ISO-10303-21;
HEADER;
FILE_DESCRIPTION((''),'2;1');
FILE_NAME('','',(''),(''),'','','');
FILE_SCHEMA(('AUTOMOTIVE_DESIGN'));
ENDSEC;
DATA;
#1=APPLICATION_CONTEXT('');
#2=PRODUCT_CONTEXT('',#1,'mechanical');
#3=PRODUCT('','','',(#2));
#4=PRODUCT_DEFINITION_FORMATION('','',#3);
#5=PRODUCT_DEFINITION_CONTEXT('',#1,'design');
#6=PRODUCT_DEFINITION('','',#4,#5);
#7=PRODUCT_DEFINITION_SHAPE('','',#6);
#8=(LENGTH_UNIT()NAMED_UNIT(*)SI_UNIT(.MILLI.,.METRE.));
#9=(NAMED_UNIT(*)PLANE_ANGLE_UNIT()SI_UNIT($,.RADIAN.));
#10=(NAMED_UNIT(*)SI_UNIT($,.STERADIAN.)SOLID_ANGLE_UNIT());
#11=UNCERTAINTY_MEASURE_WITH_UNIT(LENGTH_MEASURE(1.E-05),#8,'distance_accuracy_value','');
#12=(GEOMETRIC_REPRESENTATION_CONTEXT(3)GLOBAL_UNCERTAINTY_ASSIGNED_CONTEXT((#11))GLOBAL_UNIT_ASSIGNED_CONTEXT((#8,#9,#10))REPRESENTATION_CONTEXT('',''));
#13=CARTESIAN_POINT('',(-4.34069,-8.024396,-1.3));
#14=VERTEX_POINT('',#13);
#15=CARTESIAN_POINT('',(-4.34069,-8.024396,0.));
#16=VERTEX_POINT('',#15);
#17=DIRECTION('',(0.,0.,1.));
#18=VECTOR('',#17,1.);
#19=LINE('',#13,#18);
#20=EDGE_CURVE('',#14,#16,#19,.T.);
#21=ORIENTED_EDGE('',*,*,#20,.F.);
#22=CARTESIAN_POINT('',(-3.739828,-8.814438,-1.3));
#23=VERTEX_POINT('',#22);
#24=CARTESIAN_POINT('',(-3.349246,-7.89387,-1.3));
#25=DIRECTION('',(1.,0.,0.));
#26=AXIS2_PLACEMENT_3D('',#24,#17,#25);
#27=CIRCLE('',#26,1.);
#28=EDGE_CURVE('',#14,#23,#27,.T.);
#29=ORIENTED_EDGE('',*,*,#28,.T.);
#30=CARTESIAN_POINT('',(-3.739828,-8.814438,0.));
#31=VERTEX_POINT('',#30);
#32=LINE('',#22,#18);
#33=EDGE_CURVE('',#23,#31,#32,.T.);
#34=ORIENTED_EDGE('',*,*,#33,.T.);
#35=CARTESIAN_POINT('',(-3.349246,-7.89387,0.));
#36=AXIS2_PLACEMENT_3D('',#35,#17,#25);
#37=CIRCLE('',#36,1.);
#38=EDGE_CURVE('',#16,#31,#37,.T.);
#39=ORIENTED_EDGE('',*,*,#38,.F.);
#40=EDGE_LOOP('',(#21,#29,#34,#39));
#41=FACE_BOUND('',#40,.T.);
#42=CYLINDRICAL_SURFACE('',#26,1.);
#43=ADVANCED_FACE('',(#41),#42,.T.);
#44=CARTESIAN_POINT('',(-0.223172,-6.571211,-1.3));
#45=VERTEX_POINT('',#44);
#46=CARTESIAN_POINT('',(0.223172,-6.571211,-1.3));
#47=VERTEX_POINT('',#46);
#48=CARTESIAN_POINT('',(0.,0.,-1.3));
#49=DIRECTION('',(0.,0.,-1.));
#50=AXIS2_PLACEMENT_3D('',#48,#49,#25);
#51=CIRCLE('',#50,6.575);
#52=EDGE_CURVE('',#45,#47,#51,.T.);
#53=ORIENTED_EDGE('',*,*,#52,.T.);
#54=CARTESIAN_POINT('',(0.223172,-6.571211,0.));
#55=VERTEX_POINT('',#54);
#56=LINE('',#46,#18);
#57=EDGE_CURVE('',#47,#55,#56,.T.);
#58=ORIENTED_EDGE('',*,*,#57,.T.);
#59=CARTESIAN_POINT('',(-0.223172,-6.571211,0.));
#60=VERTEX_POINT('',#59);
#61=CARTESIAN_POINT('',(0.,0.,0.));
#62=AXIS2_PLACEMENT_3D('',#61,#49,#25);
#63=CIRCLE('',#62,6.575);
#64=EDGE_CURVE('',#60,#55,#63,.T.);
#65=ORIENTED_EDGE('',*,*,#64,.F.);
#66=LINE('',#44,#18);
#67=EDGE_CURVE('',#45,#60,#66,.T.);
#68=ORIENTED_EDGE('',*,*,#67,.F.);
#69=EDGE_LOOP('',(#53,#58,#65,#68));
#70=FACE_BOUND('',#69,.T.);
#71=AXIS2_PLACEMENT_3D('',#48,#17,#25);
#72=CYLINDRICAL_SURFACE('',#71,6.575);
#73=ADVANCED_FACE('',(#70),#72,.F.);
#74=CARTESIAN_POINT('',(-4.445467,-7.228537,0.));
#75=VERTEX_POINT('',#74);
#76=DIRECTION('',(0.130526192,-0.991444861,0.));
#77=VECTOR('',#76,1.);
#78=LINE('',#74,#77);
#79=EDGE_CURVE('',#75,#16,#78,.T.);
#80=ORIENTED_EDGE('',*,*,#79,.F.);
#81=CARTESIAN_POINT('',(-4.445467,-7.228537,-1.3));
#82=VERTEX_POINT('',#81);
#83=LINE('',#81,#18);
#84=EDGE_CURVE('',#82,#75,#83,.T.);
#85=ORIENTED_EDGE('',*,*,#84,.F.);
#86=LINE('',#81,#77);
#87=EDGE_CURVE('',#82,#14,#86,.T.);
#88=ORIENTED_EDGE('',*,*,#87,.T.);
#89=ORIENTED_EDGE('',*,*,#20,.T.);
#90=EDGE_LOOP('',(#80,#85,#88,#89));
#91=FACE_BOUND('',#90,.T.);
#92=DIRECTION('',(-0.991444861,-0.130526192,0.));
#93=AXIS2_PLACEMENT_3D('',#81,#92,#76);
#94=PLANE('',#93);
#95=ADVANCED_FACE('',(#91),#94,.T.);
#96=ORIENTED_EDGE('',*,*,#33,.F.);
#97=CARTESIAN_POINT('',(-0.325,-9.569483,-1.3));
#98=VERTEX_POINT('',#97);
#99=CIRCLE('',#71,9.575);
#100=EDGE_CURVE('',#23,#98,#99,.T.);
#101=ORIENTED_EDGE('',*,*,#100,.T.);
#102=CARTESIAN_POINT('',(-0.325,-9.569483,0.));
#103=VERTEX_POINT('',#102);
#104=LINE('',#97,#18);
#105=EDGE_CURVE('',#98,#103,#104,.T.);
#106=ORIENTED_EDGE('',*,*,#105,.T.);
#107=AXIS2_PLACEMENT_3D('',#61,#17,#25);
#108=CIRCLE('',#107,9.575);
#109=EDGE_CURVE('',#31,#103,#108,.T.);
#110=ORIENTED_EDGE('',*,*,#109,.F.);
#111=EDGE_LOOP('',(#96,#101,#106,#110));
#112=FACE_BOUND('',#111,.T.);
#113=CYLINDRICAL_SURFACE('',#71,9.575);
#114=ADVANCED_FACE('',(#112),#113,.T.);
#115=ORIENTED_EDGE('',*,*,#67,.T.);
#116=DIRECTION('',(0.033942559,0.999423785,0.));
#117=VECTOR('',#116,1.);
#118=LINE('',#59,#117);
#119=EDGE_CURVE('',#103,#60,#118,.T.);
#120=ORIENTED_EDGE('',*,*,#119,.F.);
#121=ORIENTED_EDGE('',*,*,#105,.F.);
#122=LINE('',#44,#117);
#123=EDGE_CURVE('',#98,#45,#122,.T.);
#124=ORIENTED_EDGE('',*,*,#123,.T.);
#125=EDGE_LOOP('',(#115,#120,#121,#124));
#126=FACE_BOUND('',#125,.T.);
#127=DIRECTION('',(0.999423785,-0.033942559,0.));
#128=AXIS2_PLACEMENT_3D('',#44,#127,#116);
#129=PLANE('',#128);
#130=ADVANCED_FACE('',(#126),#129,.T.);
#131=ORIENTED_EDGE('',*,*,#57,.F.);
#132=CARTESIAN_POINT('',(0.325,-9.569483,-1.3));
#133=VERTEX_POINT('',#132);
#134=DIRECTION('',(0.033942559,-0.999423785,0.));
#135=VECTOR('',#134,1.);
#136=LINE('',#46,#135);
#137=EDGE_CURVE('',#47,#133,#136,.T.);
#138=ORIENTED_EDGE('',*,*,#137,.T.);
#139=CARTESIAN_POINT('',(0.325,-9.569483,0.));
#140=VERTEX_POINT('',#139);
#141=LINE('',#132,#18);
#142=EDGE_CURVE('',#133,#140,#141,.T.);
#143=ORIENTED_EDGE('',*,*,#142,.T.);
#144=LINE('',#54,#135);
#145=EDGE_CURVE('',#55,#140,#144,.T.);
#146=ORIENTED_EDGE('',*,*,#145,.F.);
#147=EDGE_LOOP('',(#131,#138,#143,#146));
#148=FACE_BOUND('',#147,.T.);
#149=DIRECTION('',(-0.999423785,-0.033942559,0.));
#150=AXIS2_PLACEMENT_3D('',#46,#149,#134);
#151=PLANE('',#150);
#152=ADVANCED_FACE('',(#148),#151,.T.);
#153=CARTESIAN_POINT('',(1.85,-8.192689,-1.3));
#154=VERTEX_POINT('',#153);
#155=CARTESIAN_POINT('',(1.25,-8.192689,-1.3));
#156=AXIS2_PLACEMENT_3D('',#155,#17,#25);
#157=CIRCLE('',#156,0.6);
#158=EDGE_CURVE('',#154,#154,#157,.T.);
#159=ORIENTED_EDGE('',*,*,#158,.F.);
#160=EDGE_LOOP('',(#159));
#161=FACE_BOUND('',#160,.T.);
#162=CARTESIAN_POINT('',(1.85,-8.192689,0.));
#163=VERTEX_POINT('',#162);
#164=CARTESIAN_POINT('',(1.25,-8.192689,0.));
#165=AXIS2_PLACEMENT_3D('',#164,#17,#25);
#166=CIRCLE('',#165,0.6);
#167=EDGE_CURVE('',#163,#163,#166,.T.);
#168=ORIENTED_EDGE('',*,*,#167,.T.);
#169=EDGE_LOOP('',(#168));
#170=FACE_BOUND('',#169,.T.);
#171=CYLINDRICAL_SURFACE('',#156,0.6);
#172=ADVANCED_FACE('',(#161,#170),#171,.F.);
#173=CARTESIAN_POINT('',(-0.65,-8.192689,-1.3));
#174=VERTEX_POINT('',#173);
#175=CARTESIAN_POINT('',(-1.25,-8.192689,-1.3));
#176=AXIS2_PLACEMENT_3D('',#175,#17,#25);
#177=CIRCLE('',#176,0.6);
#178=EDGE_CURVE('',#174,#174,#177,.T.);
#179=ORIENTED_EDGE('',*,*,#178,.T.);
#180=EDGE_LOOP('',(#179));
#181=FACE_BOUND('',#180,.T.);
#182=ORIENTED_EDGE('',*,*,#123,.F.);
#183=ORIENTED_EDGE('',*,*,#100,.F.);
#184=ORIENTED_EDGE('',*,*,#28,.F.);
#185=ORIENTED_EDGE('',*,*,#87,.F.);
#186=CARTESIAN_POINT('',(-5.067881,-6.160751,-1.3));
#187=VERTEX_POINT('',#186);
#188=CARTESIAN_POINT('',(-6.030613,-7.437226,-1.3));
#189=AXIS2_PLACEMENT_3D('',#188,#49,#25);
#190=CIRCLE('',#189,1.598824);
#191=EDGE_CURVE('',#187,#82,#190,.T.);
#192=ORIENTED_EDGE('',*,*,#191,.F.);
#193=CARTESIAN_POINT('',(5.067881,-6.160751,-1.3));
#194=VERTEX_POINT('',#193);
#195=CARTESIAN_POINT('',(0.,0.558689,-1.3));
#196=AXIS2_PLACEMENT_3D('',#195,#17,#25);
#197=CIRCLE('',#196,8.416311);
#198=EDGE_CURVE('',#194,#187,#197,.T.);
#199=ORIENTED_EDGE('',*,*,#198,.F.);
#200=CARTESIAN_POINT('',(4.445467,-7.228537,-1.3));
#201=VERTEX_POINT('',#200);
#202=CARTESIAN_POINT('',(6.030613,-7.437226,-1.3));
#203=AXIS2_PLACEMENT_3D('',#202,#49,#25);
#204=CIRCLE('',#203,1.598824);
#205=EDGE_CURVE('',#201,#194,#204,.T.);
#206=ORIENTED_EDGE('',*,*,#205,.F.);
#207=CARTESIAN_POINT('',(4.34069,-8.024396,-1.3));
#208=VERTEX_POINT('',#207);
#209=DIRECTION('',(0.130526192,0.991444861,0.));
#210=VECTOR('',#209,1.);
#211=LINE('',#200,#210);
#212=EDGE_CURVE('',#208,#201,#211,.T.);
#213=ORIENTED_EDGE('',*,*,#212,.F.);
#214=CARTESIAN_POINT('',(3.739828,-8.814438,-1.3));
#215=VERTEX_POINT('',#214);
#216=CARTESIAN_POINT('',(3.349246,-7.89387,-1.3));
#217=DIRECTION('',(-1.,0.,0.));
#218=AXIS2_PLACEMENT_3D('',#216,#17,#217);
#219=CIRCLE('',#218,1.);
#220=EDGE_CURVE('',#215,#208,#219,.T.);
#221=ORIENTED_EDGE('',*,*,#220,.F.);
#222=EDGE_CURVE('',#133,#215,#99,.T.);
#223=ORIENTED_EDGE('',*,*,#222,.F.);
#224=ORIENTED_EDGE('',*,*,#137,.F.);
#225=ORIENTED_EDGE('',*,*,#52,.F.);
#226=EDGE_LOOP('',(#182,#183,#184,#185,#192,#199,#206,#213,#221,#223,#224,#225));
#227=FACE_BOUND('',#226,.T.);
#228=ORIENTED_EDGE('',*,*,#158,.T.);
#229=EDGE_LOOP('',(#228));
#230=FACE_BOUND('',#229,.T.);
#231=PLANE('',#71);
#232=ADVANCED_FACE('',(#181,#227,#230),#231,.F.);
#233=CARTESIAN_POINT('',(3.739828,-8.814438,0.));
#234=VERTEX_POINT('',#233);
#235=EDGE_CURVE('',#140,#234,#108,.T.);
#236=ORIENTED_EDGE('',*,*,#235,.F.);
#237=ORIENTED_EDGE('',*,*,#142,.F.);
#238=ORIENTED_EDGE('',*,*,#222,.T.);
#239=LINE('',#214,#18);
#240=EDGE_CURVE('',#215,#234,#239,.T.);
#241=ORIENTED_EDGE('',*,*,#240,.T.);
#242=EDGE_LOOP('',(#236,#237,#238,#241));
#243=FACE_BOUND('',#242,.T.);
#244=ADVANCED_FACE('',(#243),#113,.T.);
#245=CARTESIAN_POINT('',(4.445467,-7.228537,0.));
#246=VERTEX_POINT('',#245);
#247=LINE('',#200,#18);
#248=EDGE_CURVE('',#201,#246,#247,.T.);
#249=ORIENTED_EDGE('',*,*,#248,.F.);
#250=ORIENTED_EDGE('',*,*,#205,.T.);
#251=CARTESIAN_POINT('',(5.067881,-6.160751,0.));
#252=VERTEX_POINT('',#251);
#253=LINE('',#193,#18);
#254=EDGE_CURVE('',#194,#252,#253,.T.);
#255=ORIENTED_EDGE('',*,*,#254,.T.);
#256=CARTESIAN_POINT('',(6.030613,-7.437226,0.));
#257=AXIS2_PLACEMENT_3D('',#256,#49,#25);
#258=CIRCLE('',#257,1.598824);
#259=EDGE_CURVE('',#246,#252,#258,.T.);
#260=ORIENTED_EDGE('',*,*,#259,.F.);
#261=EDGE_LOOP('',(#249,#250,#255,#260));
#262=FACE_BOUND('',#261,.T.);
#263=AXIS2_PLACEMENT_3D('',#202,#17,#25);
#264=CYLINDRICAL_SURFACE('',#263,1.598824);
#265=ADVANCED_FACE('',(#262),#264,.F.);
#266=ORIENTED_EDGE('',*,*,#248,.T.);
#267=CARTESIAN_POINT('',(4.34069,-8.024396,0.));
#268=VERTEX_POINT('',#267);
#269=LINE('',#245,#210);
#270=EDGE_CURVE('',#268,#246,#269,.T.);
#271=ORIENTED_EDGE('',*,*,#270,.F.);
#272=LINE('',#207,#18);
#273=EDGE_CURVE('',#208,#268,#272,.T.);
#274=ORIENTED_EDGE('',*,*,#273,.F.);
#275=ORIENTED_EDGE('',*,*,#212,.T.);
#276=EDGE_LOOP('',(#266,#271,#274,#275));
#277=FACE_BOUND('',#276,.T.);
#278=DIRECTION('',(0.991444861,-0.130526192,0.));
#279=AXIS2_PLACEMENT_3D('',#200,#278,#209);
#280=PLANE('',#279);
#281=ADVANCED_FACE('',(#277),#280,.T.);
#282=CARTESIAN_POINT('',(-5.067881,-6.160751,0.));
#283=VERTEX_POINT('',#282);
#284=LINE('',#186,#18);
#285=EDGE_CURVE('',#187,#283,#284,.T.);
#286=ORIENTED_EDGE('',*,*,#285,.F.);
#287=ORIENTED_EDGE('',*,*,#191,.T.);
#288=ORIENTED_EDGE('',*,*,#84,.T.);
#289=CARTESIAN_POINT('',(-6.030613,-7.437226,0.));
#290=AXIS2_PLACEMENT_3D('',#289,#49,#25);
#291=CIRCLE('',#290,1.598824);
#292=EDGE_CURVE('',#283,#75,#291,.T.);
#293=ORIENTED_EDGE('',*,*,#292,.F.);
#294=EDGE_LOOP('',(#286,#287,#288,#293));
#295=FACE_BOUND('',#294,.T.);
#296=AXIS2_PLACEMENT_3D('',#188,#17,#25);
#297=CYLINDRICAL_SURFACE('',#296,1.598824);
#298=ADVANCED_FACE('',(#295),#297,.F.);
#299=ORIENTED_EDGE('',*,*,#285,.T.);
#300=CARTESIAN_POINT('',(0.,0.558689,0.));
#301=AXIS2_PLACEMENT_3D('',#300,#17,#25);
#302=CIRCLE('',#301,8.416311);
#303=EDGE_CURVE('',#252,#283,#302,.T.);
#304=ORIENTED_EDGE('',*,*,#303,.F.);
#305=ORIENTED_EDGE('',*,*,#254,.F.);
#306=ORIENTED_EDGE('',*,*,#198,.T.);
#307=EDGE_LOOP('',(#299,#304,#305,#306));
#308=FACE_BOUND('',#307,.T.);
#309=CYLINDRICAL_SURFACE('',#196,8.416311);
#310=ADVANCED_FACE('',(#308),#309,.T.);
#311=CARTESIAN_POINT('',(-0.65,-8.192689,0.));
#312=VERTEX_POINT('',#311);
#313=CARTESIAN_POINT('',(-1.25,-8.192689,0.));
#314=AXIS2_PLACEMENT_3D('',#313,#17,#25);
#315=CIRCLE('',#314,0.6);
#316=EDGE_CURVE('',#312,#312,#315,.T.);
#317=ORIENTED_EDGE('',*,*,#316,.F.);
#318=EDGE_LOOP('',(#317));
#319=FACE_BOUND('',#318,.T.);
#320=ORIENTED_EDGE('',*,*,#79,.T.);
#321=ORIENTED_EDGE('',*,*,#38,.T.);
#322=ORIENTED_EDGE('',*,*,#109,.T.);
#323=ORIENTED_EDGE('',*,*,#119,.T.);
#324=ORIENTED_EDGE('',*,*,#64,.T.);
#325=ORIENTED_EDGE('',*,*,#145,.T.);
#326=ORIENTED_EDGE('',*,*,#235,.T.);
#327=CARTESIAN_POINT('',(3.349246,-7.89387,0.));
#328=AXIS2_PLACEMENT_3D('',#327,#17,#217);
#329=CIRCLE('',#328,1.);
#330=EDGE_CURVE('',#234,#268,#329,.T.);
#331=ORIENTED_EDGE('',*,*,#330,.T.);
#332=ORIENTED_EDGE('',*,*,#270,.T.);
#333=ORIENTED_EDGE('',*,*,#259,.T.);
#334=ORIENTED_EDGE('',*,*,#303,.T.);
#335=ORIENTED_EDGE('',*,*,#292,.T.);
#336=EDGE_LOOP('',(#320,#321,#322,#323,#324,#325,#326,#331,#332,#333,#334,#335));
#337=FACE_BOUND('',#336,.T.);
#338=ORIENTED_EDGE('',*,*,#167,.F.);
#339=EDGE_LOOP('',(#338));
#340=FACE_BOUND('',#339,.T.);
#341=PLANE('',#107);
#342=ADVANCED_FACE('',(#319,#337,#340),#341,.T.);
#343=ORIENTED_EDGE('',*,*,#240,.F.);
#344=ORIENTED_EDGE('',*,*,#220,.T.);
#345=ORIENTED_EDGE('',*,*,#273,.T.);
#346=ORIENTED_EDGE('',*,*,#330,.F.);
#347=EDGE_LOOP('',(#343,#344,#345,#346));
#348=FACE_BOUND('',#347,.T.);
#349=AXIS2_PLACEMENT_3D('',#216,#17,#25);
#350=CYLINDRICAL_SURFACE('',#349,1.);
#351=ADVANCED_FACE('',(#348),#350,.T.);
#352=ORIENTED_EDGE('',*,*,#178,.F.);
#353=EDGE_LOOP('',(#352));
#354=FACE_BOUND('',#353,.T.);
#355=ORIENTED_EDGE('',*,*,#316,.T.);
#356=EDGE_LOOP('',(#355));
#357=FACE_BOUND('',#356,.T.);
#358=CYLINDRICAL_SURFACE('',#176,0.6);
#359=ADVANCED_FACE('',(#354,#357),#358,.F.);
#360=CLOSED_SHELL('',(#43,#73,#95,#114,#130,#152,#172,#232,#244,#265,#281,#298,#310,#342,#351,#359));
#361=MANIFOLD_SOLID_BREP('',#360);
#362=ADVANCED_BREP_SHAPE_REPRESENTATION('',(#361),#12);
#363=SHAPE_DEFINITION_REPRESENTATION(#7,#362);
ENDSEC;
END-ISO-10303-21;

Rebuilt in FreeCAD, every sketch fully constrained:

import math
import FreeCAD as App
import Part
import Sketcher
from FreeCAD import Vector
Q = App.Units.Quantity

doc = App.newDocument("Part")
body = doc.addObject("PartDesign::Body", "Body")

# Sketch on XY plane
sketch1 = doc.addObject("Sketcher::SketchObject", "Sketch")
body.addObject(sketch1)
sketch1.AttachmentSupport = (doc.XY_Plane, [""])
sketch1.MapMode = "FlatFace"
sketch1.addGeometry(Part.LineSegment(Vector(0.22, -6.57, 0), Vector(0.33, -9.57, 0)), False)
sketch1.addGeometry(Part.ArcOfCircle(Part.Circle(Vector(0, 0, 0), Vector(0, 0, 1), 9.57), math.radians(-88), math.radians(-67)), False)
sketch1.addGeometry(Part.ArcOfCircle(Part.Circle(Vector(3.35, -7.89, 0), Vector(0, 0, 1), 1), math.radians(-67), math.radians(-7)), False)
sketch1.addGeometry(Part.LineSegment(Vector(4.34, -8.02, 0), Vector(4.45, -7.23, 0)), False)
sketch1.addGeometry(Part.ArcOfCircle(Part.Circle(Vector(6.03, -7.44, 0), Vector(0, 0, 1), 1.6), math.radians(127), math.radians(172)), False)
sketch1.addGeometry(Part.ArcOfCircle(Part.Circle(Vector(0, 0.56, 0), Vector(0, 0, 1), 8.42), math.radians(-53), math.radians(233)), False)
sketch1.addGeometry(Part.ArcOfCircle(Part.Circle(Vector(-6.03, -7.44, 0), Vector(0, 0, 1), 1.6), math.radians(8), math.radians(53)), False)
sketch1.addGeometry(Part.LineSegment(Vector(-4.45, -7.23, 0), Vector(-4.34, -8.02, 0)), False)
sketch1.addGeometry(Part.ArcOfCircle(Part.Circle(Vector(-3.35, -7.89, 0), Vector(0, 0, 1), 1), math.radians(-173), math.radians(-113)), False)
sketch1.addGeometry(Part.ArcOfCircle(Part.Circle(Vector(0, 0, 0), Vector(0, 0, 1), 9.57), math.radians(-113), math.radians(-92)), False)
sketch1.addGeometry(Part.LineSegment(Vector(-0.33, -9.57, 0), Vector(-0.22, -6.57, 0)), False)
sketch1.addGeometry(Part.ArcOfCircle(Part.Circle(Vector(0, 0, 0), Vector(0, 0, 1), 6.58), math.radians(-88), math.radians(268)), False)
sketch1.addGeometry(Part.Circle(Vector(-1.25, -8.19, 0), Vector(0, 0, 1), 0.6), False)
sketch1.addGeometry(Part.Circle(Vector(1.25, -8.19, 0), Vector(0, 0, 1), 0.6), False)
sketch1.addConstraint(Sketcher.Constraint("Coincident", 0, 2, 1, 1))
sketch1.addConstraint(Sketcher.Constraint("Tangent", 1, 2, 2, 1))
sketch1.addConstraint(Sketcher.Constraint("Tangent", 2, 2, 3, 1))
sketch1.addConstraint(Sketcher.Constraint("Tangent", 3, 2, 4, 2))
sketch1.addConstraint(Sketcher.Constraint("Tangent", 4, 1, 5, 1))
sketch1.addConstraint(Sketcher.Constraint("Tangent", 5, 2, 6, 2))
sketch1.addConstraint(Sketcher.Constraint("Tangent", 6, 1, 7, 1))
sketch1.addConstraint(Sketcher.Constraint("Tangent", 7, 2, 8, 1))
sketch1.addConstraint(Sketcher.Constraint("Tangent", 8, 2, 9, 1))
sketch1.addConstraint(Sketcher.Constraint("Coincident", 9, 2, 10, 1))
sketch1.addConstraint(Sketcher.Constraint("Coincident", 10, 2, 11, 2))
sketch1.addConstraint(Sketcher.Constraint("Coincident", 11, 1, 0, 1))
sketch1.addConstraint(Sketcher.Constraint("Coincident", 1, 3, -1, 1))
sketch1.addConstraint(Sketcher.Constraint("Coincident", 9, 3, -1, 1))
sketch1.addConstraint(Sketcher.Constraint("Coincident", 11, 3, -1, 1))
sketch1.addConstraint(Sketcher.Constraint("Equal", 4, 6))
sketch1.addConstraint(Sketcher.Constraint("Equal", 2, 8))
sketch1.addConstraint(Sketcher.Constraint("Equal", 1, 9))
sketch1.addConstraint(Sketcher.Constraint("Equal", 12, 13))
sketch1.addConstraint(Sketcher.Constraint("Symmetric", 4, 3, 6, 3, -2))
sketch1.addConstraint(Sketcher.Constraint("Symmetric", 12, 3, 13, 3, -2))
sketch1.addConstraint(Sketcher.Constraint("Horizontal", 2, 3, 8, 3))
sketch1.addConstraint(Sketcher.Constraint("Horizontal", 0, 2, 9, 2))
sketch1.addConstraint(Sketcher.Constraint("Horizontal", 10, 2, 11, 1))
sketch1.addConstraint(Sketcher.Constraint("Radius", 2, Q("1 mm")))
sketch1.addConstraint(Sketcher.Constraint("Diameter", 12, Q("1.2 mm")))
sketch1.addConstraint(Sketcher.Constraint("Distance", 0, Q("3 mm")))
sketch1.addConstraint(Sketcher.Constraint("Angle", 3, Q("82.5 deg")))
sketch1.addConstraint(Sketcher.Constraint("Radius", 1, Q("9.575 mm")))
sketch1.addConstraint(Sketcher.Constraint("DistanceX", 12, 3, 13, 3, Q("2.5 mm")))
sketch1.addConstraint(Sketcher.Constraint("Radius", 5, Q("8.416311 mm")))
sketch1.addConstraint(Sketcher.Constraint("DistanceX", 9, 2, 0, 2, Q("0.65 mm")))
sketch1.addConstraint(Sketcher.Constraint("Radius", 4, Q("1.598824 mm")))
sketch1.addConstraint(Sketcher.Constraint("DistanceY", 1, 2, 3, 2, Q("1.5859 mm")))
sketch1.addConstraint(Sketcher.Constraint("DistanceY", 2, 3, -1, 1, Q("7.89387 mm")))
sketch1.addConstraint(Sketcher.Constraint("DistanceY", 12, 3, -1, 1, Q("8.192689 mm")))
sketch1.addConstraint(Sketcher.Constraint("DistanceY", 10, 2, -1, 1, Q("6.571211 mm")))
pad1 = doc.addObject("PartDesign::Pad", "Pad")
body.addObject(pad1)
pad1.Profile = sketch1
pad1.Length = 1.3
pad1.Reversed = True

doc.recompute()
